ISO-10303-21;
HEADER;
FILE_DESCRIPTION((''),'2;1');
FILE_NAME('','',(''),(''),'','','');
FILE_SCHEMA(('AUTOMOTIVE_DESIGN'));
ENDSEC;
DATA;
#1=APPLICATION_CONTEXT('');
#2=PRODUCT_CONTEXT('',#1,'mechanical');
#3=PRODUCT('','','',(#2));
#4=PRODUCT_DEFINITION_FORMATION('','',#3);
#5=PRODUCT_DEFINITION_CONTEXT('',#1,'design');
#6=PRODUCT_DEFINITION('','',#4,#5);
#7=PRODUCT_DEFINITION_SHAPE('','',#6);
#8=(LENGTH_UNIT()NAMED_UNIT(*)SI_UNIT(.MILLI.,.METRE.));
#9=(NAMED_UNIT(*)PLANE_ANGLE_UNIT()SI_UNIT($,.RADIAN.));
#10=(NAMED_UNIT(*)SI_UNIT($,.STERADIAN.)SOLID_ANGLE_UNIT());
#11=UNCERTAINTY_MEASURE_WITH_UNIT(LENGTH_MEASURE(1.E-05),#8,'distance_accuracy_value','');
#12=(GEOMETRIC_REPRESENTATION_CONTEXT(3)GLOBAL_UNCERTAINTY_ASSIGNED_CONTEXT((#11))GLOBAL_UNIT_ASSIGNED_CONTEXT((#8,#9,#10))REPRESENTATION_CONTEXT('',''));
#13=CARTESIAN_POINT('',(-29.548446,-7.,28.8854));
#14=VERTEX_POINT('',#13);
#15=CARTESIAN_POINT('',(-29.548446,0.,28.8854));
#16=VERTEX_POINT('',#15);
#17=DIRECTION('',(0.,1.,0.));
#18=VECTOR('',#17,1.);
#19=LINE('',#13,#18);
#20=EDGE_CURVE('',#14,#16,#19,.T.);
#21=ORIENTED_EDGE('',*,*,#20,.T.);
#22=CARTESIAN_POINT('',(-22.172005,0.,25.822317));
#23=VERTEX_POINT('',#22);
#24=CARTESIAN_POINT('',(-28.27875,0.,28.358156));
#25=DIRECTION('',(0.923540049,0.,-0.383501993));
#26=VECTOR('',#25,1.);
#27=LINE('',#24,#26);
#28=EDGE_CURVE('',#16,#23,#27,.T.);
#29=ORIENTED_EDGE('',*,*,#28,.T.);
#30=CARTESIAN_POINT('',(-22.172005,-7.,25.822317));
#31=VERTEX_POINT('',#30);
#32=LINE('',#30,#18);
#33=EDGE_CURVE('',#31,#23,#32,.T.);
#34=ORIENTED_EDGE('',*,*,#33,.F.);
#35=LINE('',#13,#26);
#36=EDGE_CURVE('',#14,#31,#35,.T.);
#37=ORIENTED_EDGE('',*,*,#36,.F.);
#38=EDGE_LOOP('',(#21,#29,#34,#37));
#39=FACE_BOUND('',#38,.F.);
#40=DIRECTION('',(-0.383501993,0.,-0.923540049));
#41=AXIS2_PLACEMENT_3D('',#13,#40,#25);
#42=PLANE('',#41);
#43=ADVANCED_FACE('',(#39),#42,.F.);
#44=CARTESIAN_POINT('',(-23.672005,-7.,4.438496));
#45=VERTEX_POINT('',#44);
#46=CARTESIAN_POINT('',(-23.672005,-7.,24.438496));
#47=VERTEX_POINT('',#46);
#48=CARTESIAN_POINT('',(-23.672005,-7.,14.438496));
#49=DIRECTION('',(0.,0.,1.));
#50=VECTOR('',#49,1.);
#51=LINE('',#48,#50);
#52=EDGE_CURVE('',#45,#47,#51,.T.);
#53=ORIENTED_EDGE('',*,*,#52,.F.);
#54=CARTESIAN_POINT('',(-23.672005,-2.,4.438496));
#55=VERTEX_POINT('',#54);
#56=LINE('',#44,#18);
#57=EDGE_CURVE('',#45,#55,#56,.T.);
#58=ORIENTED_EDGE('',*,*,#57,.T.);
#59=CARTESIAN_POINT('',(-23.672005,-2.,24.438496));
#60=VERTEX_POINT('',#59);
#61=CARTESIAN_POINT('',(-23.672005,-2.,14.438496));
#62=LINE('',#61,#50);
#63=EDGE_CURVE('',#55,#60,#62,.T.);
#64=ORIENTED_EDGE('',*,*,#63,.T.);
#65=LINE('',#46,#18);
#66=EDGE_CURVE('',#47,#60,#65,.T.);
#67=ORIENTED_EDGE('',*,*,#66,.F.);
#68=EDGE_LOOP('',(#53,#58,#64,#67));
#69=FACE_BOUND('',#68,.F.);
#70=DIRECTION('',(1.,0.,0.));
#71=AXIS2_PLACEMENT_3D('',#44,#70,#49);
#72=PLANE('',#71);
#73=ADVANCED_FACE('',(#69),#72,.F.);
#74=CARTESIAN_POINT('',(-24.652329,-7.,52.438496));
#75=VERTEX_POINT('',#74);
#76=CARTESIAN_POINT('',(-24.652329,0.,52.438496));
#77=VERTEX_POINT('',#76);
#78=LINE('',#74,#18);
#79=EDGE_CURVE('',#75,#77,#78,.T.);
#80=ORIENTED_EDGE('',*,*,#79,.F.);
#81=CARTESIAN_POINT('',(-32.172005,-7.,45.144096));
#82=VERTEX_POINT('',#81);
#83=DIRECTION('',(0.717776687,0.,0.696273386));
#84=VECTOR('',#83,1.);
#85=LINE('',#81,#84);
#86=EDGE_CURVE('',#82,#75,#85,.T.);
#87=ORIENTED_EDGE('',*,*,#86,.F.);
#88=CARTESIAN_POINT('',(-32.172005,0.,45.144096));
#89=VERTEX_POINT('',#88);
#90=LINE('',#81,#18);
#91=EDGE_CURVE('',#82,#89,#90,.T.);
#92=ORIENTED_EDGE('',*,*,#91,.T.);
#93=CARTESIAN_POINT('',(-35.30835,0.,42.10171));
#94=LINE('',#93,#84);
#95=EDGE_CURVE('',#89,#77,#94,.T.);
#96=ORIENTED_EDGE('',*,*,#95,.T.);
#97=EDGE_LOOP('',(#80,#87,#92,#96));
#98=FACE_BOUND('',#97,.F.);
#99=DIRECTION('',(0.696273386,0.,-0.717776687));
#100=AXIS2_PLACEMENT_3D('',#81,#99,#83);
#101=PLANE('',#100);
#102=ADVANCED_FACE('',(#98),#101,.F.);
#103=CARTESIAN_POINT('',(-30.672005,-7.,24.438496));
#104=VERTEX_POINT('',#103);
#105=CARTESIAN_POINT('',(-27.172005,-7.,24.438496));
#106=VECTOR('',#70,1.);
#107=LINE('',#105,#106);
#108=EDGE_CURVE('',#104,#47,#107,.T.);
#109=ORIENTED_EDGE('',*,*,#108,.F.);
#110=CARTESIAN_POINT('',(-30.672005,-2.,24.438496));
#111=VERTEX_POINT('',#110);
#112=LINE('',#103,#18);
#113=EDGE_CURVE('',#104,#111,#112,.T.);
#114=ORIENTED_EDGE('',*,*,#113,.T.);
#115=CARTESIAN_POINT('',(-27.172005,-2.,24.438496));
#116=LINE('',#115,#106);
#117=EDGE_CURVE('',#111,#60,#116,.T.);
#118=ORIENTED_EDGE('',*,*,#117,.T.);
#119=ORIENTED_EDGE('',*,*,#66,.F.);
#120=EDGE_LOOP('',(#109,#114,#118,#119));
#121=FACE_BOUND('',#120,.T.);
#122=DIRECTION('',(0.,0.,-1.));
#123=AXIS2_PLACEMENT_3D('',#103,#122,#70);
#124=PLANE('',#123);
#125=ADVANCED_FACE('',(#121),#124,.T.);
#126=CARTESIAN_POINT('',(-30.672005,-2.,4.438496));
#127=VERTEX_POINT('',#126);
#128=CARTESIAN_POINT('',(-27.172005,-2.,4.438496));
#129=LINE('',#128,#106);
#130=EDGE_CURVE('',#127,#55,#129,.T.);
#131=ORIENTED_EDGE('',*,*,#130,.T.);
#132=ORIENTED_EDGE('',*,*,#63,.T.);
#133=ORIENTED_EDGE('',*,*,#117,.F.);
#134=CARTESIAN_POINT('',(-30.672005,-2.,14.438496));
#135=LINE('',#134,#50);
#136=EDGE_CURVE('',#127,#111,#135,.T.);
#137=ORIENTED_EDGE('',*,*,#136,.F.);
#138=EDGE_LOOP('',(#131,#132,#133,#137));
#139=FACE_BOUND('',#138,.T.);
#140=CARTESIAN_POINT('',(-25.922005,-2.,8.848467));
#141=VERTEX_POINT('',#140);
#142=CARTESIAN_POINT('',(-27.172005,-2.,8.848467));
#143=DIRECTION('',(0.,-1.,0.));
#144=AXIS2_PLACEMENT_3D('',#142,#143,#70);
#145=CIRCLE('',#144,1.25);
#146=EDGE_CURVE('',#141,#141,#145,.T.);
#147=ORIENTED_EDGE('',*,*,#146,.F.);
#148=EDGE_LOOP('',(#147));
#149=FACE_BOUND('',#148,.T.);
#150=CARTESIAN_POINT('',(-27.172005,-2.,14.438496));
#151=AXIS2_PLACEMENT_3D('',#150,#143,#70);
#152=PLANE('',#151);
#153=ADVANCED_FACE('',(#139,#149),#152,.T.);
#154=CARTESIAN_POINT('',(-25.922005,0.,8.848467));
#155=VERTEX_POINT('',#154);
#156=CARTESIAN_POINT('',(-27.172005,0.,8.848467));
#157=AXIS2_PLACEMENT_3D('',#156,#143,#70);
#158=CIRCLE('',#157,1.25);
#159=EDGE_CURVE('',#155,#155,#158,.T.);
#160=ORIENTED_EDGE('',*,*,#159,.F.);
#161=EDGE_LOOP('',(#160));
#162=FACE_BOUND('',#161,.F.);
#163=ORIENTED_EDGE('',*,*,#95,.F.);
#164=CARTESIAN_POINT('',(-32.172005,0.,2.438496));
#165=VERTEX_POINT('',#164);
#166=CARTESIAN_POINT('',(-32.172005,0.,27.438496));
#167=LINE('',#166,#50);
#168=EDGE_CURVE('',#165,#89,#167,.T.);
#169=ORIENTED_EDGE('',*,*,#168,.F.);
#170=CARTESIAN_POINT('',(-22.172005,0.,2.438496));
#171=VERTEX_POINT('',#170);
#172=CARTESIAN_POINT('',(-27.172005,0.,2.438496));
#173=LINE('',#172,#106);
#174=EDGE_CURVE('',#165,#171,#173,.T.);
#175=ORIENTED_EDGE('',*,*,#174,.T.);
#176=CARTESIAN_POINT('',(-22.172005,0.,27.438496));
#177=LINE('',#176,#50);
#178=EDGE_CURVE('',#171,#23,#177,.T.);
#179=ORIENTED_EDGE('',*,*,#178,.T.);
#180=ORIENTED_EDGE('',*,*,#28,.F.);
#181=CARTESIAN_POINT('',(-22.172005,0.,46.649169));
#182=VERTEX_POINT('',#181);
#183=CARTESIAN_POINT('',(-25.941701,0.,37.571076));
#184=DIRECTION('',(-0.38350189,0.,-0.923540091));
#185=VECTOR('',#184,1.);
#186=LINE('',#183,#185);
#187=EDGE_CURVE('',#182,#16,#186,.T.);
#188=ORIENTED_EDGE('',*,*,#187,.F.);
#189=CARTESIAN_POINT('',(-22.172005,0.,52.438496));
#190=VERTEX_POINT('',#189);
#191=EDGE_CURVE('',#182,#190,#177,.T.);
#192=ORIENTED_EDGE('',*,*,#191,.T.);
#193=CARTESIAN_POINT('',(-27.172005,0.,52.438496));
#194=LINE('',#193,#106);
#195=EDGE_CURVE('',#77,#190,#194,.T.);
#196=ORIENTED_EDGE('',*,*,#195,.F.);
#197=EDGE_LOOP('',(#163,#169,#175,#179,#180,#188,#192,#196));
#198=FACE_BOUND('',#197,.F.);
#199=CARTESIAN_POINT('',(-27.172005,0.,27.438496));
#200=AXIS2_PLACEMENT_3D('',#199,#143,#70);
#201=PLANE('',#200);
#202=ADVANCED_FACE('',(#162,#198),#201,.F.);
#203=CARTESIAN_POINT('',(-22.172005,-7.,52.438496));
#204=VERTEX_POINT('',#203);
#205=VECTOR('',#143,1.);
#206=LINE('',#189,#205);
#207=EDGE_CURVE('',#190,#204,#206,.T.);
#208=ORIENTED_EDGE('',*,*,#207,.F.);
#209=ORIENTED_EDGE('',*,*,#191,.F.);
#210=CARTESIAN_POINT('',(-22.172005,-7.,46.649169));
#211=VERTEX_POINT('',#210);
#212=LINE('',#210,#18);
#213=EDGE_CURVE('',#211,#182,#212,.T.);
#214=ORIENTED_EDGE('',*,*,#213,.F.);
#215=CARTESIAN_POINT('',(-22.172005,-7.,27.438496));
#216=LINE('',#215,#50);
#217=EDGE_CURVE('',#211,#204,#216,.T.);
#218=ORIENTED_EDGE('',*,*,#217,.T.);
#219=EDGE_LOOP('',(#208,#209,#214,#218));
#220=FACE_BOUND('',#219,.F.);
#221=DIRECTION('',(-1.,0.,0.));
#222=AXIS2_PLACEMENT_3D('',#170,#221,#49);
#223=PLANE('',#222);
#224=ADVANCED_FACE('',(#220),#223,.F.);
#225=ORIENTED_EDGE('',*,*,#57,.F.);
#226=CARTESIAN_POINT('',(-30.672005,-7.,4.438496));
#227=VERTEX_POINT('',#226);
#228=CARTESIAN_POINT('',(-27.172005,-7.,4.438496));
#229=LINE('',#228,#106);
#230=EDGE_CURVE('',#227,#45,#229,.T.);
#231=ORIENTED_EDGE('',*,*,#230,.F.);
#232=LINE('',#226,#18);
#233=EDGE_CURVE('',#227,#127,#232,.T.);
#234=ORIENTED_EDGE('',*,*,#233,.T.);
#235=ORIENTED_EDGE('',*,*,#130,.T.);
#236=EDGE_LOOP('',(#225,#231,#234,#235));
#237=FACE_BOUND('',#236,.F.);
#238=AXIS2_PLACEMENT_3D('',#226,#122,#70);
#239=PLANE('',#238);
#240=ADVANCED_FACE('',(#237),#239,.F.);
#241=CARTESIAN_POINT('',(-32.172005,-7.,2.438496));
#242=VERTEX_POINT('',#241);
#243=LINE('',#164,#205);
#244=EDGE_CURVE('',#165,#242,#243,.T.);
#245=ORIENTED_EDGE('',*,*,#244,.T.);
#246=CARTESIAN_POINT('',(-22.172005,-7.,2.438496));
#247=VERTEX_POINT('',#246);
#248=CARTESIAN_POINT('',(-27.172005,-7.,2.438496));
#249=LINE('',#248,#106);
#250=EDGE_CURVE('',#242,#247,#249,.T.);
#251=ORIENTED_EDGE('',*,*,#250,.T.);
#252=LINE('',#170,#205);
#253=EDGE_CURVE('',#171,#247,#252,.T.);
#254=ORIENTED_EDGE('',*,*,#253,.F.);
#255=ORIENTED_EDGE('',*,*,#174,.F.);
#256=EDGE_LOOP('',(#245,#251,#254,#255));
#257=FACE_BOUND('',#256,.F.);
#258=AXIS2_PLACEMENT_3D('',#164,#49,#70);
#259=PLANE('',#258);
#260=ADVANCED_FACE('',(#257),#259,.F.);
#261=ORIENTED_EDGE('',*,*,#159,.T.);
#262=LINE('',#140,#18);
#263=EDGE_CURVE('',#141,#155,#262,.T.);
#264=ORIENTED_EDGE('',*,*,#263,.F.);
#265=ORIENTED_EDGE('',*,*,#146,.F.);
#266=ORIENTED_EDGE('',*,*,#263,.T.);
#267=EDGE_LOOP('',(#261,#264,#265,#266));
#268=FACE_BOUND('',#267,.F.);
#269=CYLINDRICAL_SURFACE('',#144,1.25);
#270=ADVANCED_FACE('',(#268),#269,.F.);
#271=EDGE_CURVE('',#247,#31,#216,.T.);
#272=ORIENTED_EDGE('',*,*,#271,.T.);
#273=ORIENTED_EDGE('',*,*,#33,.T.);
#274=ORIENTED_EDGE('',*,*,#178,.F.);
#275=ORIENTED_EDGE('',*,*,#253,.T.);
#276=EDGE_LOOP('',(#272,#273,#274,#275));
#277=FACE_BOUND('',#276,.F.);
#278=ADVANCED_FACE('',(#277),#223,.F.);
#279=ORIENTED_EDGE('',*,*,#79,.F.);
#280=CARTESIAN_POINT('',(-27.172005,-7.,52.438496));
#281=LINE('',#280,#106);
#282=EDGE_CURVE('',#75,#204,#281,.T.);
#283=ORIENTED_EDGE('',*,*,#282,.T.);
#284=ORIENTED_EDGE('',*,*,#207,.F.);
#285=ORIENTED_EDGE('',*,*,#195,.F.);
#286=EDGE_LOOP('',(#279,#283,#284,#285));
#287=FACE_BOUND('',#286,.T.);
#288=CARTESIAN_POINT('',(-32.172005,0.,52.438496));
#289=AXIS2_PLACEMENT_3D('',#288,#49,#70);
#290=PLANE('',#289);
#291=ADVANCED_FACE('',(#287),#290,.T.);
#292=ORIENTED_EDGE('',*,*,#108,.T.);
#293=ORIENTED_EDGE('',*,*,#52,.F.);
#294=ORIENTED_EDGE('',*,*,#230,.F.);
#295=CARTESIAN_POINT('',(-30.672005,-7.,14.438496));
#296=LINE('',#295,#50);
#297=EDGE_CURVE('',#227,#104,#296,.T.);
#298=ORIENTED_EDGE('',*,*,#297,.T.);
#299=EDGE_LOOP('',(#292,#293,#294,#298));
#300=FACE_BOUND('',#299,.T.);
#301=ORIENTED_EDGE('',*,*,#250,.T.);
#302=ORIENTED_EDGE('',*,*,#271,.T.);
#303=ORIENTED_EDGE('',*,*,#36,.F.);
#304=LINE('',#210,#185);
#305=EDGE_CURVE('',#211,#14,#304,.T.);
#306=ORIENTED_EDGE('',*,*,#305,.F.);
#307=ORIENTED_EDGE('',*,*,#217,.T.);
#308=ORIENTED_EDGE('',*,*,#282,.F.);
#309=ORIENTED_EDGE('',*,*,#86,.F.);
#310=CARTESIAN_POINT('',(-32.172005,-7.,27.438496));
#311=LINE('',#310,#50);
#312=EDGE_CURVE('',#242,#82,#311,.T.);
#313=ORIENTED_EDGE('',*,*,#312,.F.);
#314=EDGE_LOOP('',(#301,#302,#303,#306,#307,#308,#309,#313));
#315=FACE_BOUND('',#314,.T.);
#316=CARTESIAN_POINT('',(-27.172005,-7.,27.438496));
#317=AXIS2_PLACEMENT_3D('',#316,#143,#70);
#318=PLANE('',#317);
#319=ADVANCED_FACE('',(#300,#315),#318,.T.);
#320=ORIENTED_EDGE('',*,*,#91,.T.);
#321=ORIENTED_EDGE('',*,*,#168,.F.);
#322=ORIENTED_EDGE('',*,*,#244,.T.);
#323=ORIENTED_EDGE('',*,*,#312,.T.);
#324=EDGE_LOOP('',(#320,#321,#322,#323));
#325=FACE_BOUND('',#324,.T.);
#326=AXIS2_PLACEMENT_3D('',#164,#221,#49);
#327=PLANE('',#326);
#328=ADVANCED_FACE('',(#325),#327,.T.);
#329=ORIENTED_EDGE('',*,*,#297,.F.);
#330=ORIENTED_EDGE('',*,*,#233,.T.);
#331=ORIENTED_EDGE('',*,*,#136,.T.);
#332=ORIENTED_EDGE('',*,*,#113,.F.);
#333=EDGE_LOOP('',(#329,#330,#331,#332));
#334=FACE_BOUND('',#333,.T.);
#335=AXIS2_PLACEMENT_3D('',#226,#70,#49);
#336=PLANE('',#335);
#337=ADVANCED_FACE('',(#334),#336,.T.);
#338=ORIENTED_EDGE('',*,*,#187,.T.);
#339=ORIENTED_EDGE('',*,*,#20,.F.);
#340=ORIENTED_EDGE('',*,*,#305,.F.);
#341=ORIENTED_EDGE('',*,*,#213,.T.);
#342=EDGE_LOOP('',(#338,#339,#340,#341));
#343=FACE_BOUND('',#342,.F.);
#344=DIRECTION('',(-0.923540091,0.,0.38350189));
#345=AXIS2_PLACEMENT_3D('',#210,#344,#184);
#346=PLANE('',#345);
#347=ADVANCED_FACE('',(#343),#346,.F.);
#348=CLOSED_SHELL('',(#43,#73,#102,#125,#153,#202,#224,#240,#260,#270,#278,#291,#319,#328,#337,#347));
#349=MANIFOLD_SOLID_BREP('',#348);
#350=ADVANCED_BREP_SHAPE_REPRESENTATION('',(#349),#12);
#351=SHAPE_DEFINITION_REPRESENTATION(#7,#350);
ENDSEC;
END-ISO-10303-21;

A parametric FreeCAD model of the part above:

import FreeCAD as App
import Part
import Sketcher
from FreeCAD import Vector


def add_polygon(sketch, points):
    """Adds a closed chain of lines whose ends are joined by coincident constraints."""
    first, n = sketch.GeometryCount, len(points)
    for a, b in zip(points, points[1:] + points[:1]):
        sketch.addGeometry(Part.LineSegment(App.Vector(*a, 0), App.Vector(*b, 0)), False)
    for i in range(n):
        sketch.addConstraint(Sketcher.Constraint("Coincident", first + i, 2, first + (i + 1) % n, 1))

doc = App.newDocument("Part")
params = doc.addObject("Spreadsheet::Sheet", "Params")
for row, (alias, value) in enumerate([
    ("sketch1_width", "10 mm"),
    ("sketch1_height", "50 mm"),
    ("pad1_length", "7 mm"),
    ("sketch2_width", "7 mm"),
    ("sketch2_height", "20 mm"),
    ("pocket1_length", "5 mm"),
    ("sketch3_diameter", "2.5 mm"),
], start=1):
    params.set(f"A{row}", alias)
    params.set(f"B{row}", "=" + value)
    params.setAlias(f"B{row}", alias)

body = doc.addObject("PartDesign::Body", "Body")

sketch1 = doc.addObject("Sketcher::SketchObject", "Sketch")
body.addObject(sketch1)
sketch1.AttachmentSupport = (doc.XZ_Plane, [""])
sketch1.MapMode = "FlatFace"
add_polygon(sketch1, [(-32, 52), (-32, 2), (-22, 2), (-22, 52)])
sketch1.addConstraint([
    Sketcher.Constraint("Vertical", 0),
    Sketcher.Constraint("Horizontal", 1),
    Sketcher.Constraint("Vertical", 2),
    Sketcher.Constraint("Horizontal", 3),
    Sketcher.Constraint("DistanceX", 1, 1, 1, 2, 10.0),
    Sketcher.Constraint("DistanceY", 0, 2, 0, 1, 50.0),
    Sketcher.Constraint("DistanceX", 0, 2, -1, 1, 32.172005),
    Sketcher.Constraint("DistanceY", -1, 1, 0, 2, 2.438496),
])
sketch1.setExpression("Constraints[8]", "Params.sketch1_width")
sketch1.setExpression("Constraints[9]", "Params.sketch1_height")
pad1 = doc.addObject("PartDesign::Pad", "Pad")
body.addObject(pad1)
pad1.Profile = sketch1
pad1.setExpression("Length", "Params.pad1_length")

sketch2 = doc.addObject("Sketcher::SketchObject", "Sketch001")
body.addObject(sketch2)
sketch2.AttachmentSupport = (doc.XZ_Plane, [""])
sketch2.MapMode = "FlatFace"
sketch2.AttachmentOffset = App.Placement(Vector(0, 0, 7), App.Rotation())
add_polygon(sketch2, [(-31, 24), (-31, 4), (-24, 4), (-24, 24)])
sketch2.addConstraint([
    Sketcher.Constraint("Vertical", 0),
    Sketcher.Constraint("Horizontal", 1),
    Sketcher.Constraint("Vertical", 2),
    Sketcher.Constraint("Horizontal", 3),
    Sketcher.Constraint("DistanceX", 1, 1, 1, 2, 7.0),
    Sketcher.Constraint("DistanceY", 0, 2, 0, 1, 20.0),
    Sketcher.Constraint("DistanceX", 0, 2, -1, 1, 30.672005),
    Sketcher.Constraint("DistanceY", -1, 1, 0, 2, 4.438496),
])
sketch2.setExpression("Constraints[8]", "Params.sketch2_width")
sketch2.setExpression("Constraints[9]", "Params.sketch2_height")
pocket1 = doc.addObject("PartDesign::Pocket", "Pocket")
body.addObject(pocket1)
pocket1.Profile = sketch2
pocket1.setExpression("Length", "Params.pocket1_length")

sketch3 = doc.addObject("Sketcher::SketchObject", "Sketch002")
body.addObject(sketch3)
sketch3.AttachmentSupport = (doc.XZ_Plane, [""])
sketch3.MapMode = "FlatFace"
sketch3.AttachmentOffset = App.Placement(Vector(0, 0, 2), App.Rotation())
sketch3.addGeometry(Part.Circle(Vector(-27.2, 8.8, 0), Vector(0, 0, 1), 1.2), False)
sketch3.addConstraint([
    Sketcher.Constraint("Diameter", 0, 2.5),
    Sketcher.Constraint("DistanceX", 0, 3, -1, 1, 27.172005),
    Sketcher.Constraint("DistanceY", -1, 1, 0, 3, 8.848467),
])
sketch3.setExpression("Constraints[0]", "Params.sketch3_diameter")
pocket2 = doc.addObject("PartDesign::Pocket", "Pocket001")
body.addObject(pocket2)
pocket2.Profile = sketch3
pocket2.Type = "ThroughAll"

sketch4 = doc.addObject("Sketcher::SketchObject", "Sketch003")
body.addObject(sketch4)
sketch4.AttachmentSupport = (doc.XZ_Plane, [""])
sketch4.MapMode = "FlatFace"
sketch4.AttachmentOffset = App.Placement(Vector(0, 0, 7), App.Rotation())
add_polygon(sketch4, [(-32, 52), (-32, 45), (-25, 52)])
add_polygon(sketch4, [(-30, 29), (-22, 26), (-22, 47)])
sketch4.addConstraint([
    Sketcher.Constraint("Vertical", 0),
    Sketcher.Constraint("Horizontal", 2),
    Sketcher.Constraint("Vertical", 4),
    Sketcher.Constraint("Perpendicular", 3, 5),
    Sketcher.Constraint("DistanceX", 0, 2, 3, 2, 10.0),
    Sketcher.Constraint("DistanceY", 0, 2, 0, 1, 7.2944),
    Sketcher.Constraint("DistanceY", 4, 1, 4, 2, 20.826852),
    Sketcher.Constraint("DistanceY", -1, 1, 5, 2, 28.8854),
    Sketcher.Constraint("Distance", 5, 19.234432),
    Sketcher.Constraint("DistanceX", 2, 2, 2, 1, 7.519676),
    Sketcher.Constraint("DistanceX", 1, 2, -1, 1, 24.652329),
    Sketcher.Constraint("DistanceY", 3, 2, 0, 2, 19.321779),
])
pocket3 = doc.addObject("PartDesign::Pocket", "Pocket002")
body.addObject(pocket3)
pocket3.Profile = sketch4
pocket3.Type = "ThroughAll"

doc.recompute()
